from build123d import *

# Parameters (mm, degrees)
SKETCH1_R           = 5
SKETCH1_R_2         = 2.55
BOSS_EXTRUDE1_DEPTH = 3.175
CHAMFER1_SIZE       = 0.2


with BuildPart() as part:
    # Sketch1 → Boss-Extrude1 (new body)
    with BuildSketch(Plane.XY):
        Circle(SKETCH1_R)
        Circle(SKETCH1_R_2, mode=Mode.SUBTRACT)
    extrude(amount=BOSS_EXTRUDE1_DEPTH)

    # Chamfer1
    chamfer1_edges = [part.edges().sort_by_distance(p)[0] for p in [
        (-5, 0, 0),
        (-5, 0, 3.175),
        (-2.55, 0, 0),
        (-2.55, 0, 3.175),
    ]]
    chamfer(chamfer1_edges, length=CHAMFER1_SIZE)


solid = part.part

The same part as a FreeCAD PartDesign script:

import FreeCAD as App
import Part
import Sketcher
from FreeCAD import Vector


def edges_at(feature, points):
    """Names of the edges that pass closest to the given points."""
    edges = feature.Shape.Edges
    near = lambda p: min(range(len(edges)), key=lambda i: edges[i].distToShape(Part.Vertex(*p))[0])
    return sorted({f"Edge{near(p) + 1}" for p in points})

doc = App.newDocument("Part")
params = doc.addObject("Spreadsheet::Sheet", "Params")
for row, (alias, value) in enumerate([
    ("sketch1_diameter", "10 mm"),
    ("sketch1_diameter2", "5.1 mm"),
    ("pad1_length", "3.175 mm"),
    ("chamfer_size", "0.2 mm"),
], start=1):
    params.set(f"A{row}", alias)
    params.set(f"B{row}", "=" + value)
    params.setAlias(f"B{row}", alias)

body = doc.addObject("PartDesign::Body", "Body")

# Sketch on XY plane
sketch1 = body.newObject("Sketcher::SketchObject", "Sketch")
sketch1.AttachmentSupport = (doc.getObject("XY_Plane"), [""])
sketch1.MapMode = "FlatFace"
sketch1.addGeometry(Part.Circle(Vector(0, 0, 0), Vector(0, 0, 1), 5), False)
sketch1.addGeometry(Part.Circle(Vector(0, 0, 0), Vector(0, 0, 1), 2.5), False)
sketch1.addConstraint(Sketcher.Constraint("Coincident", 0, 3, -1, 1))
sketch1.addConstraint(Sketcher.Constraint("Coincident", 1, 3, -1, 1))
sketch1.addConstraint(Sketcher.Constraint("Diameter", 0, 10.0))
sketch1.addConstraint(Sketcher.Constraint("Diameter", 1, 5.1))
sketch1.setExpression("Constraints[2]", "Params.sketch1_diameter")
sketch1.setExpression("Constraints[3]", "Params.sketch1_diameter2")
pad1 = body.newObject("PartDesign::Pad", "Pad")
pad1.Profile = sketch1
pad1.setExpression("Length", "Params.pad1_length")
doc.recompute()

chamfer = body.newObject("PartDesign::Chamfer", "Chamfer")
chamfer.Base = (pad1, edges_at(pad1, [
    (-5, 0, 0),
    (-5, 0, 3.175),
    (-2.55, 0, 0),
    (-2.55, 0, 3.175),
]))
chamfer.setExpression("Size", "Params.chamfer_size")

doc.recompute()
